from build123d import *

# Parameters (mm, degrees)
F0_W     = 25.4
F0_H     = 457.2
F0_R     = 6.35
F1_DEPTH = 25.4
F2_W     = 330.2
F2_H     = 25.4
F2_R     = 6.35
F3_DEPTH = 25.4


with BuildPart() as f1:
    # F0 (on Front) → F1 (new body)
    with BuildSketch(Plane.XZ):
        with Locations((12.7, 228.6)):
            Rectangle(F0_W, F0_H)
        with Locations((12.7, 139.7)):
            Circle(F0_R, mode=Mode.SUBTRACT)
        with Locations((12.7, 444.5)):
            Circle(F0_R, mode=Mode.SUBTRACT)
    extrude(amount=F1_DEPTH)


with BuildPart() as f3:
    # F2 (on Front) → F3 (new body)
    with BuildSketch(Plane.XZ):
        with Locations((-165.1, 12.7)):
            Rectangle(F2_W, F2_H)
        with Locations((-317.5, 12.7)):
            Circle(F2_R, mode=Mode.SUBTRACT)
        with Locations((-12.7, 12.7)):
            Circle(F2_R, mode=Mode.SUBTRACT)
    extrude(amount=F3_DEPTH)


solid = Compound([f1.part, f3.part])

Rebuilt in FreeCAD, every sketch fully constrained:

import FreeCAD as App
import Part
import Sketcher
Q = App.Units.Quantity


def add_polygon(sketch, points):
    """Adds a closed chain of lines whose ends are joined by coincident constraints."""
    first, n = sketch.GeometryCount, len(points)
    for a, b in zip(points, points[1:] + points[:1]):
        sketch.addGeometry(Part.LineSegment(App.Vector(*a, 0), App.Vector(*b, 0)), False)
    for i in range(n):
        sketch.addConstraint(Sketcher.Constraint("Coincident", first + i, 2, first + (i + 1) % n, 1))

doc = App.newDocument("Part")
params = doc.addObject("Spreadsheet::Sheet", "Params")
for row, (alias, value) in enumerate([
    ("sketch1_diameter", "0.5 in"),
    ("sketch1_width", "1 in"),
    ("sketch1_height", "18 in"),
    ("pad1_length", "1 in"),
    ("sketch2_diameter", "0.5 in"),
    ("sketch2_width", "13 in"),
    ("sketch2_height", "1 in"),
    ("pad2_length", "1 in"),
], start=1):
    params.set(f"A{row}", alias)
    params.set(f"B{row}", "=" + value)
    params.setAlias(f"B{row}", alias)

body = doc.addObject("PartDesign::Body", "Body")

sketch1 = body.newObject("Sketcher::SketchObject", "Sketch")
sketch1.AttachmentSupport = (doc.getObject("XZ_Plane"), [""])
sketch1.MapMode = "FlatFace"
add_polygon(sketch1, [(0, 457.2), (0, 0), (25.4, 0), (25.4, 457.2)])
sketch1.addGeometry(Part.Circle(App.Vector(12.7, 139.7, 0), App.Vector(0, 0, 1), 6.35), False)
sketch1.addGeometry(Part.Circle(App.Vector(12.7, 444.5, 0), App.Vector(0, 0, 1), 6.35), False)
sketch1.addConstraint(Sketcher.Constraint("Vertical", 0))
sketch1.addConstraint(Sketcher.Constraint("Horizontal", 1))
sketch1.addConstraint(Sketcher.Constraint("Vertical", 2))
sketch1.addConstraint(Sketcher.Constraint("Horizontal", 3))
sketch1.addConstraint(Sketcher.Constraint("Coincident", 0, 2, -1, 1))
sketch1.addConstraint(Sketcher.Constraint("Equal", 4, 5))
sketch1.addConstraint(Sketcher.Constraint("Vertical", 4, 3, 5, 3))
sketch1.addConstraint(Sketcher.Constraint("Diameter", 4, Q("0.5 in")))
sketch1.addConstraint(Sketcher.Constraint("DistanceX", 1, 1, 1, 2, Q("1 in")))
sketch1.addConstraint(Sketcher.Constraint("DistanceY", 0, 2, 0, 1, Q("18 in")))
sketch1.addConstraint(Sketcher.Constraint("DistanceY", 4, 3, 5, 3, Q("12 in")))
sketch1.addConstraint(Sketcher.Constraint("DistanceX", -1, 1, 4, 3, Q("0.5 in")))
sketch1.addConstraint(Sketcher.Constraint("DistanceY", -1, 1, 4, 3, Q("5.5 in")))
sketch1.setExpression("Constraints[11]", "Params.sketch1_diameter")
sketch1.setExpression("Constraints[12]", "Params.sketch1_width")
sketch1.setExpression("Constraints[13]", "Params.sketch1_height")
pad1 = body.newObject("PartDesign::Pad", "Pad")
pad1.Profile = sketch1
pad1.setExpression("Length", "Params.pad1_length")
body2 = doc.addObject("PartDesign::Body", "Body001")

sketch2 = body2.newObject("Sketcher::SketchObject", "Sketch001")
sketch2.AttachmentSupport = (doc.getObject("XZ_Plane001"), [""])
sketch2.MapMode = "FlatFace"
add_polygon(sketch2, [(-330.2, 25.4), (-330.2, 0), (0, 0), (0, 25.4)])
sketch2.addGeometry(Part.Circle(App.Vector(-317.5, 12.7, 0), App.Vector(0, 0, 1), 6.35), False)
sketch2.addGeometry(Part.Circle(App.Vector(-12.7, 12.7, 0), App.Vector(0, 0, 1), 6.35), False)
sketch2.addConstraint(Sketcher.Constraint("Vertical", 0))
sketch2.addConstraint(Sketcher.Constraint("Horizontal", 1))
sketch2.addConstraint(Sketcher.Constraint("Vertical", 2))
sketch2.addConstraint(Sketcher.Constraint("Horizontal", 3))
sketch2.addConstraint(Sketcher.Constraint("Coincident", 1, 2, -1, 1))
sketch2.addConstraint(Sketcher.Constraint("Equal", 4, 5))
sketch2.addConstraint(Sketcher.Constraint("Horizontal", 4, 3, 5, 3))
sketch2.addConstraint(Sketcher.Constraint("Diameter", 4, Q("0.5 in")))
sketch2.addConstraint(Sketcher.Constraint("DistanceX", 1, 1, 1, 2, Q("13 in")))
sketch2.addConstraint(Sketcher.Constraint("DistanceY", 0, 2, 0, 1, Q("1 in")))
sketch2.addConstraint(Sketcher.Constraint("DistanceX", 4, 3, 5, 3, Q("12 in")))
sketch2.addConstraint(Sketcher.Constraint("DistanceX", 4, 3, -1, 1, Q("12.5 in")))
sketch2.addConstraint(Sketcher.Constraint("DistanceY", -1, 1, 4, 3, Q("0.5 in")))
sketch2.setExpression("Constraints[11]", "Params.sketch2_diameter")
sketch2.setExpression("Constraints[12]", "Params.sketch2_width")
sketch2.setExpression("Constraints[13]", "Params.sketch2_height")
pad2 = body2.newObject("PartDesign::Pad", "Pad001")
pad2.Profile = sketch2
pad2.setExpression("Length", "Params.pad2_length")

doc.recompute()
